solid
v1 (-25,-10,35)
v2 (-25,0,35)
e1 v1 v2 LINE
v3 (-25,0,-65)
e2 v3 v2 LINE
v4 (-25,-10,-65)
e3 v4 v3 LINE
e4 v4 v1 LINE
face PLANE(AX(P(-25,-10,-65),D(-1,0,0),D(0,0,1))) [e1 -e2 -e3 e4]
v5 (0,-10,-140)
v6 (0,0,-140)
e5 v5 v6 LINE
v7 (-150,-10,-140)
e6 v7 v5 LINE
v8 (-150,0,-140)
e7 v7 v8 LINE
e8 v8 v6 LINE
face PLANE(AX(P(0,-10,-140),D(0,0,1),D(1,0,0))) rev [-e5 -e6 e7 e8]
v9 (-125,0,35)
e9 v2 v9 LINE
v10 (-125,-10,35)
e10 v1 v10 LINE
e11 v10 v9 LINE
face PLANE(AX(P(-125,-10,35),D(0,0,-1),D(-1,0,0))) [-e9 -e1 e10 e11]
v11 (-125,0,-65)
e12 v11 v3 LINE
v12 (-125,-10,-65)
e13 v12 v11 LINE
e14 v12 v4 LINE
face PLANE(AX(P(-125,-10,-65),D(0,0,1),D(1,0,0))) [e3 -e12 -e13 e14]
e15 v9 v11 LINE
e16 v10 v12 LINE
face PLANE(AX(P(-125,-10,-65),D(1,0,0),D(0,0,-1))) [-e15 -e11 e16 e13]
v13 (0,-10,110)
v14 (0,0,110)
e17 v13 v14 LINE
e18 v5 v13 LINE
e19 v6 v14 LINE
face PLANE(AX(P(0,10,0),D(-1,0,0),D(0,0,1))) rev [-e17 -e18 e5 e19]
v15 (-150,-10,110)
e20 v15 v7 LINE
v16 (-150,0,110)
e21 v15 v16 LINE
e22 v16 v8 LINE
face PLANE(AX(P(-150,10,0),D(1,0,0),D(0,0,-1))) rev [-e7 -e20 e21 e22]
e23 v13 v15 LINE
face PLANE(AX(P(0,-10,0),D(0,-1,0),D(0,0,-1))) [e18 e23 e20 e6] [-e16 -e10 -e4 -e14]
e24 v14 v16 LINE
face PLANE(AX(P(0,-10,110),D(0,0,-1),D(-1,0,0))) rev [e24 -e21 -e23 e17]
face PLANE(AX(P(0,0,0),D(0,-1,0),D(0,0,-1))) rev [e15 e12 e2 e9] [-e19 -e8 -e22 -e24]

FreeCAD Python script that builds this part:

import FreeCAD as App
import Part
import Sketcher

V = App.Vector

doc = App.newDocument("Part")
body = doc.addObject("PartDesign::Body", "Body")

sketch1 = doc.addObject("Sketcher::SketchObject", "Sketch")
body.addObject(sketch1)
sketch1.AttachmentSupport = (doc.XZ_Plane, [""])
sketch1.MapMode = "FlatFace"
sketch1.addGeometry(Part.LineSegment(V(-150, -30, 0), V(-150, 0, 0)), False)
sketch1.addGeometry(Part.LineSegment(V(-150, 0, 0), V(0, 0, 0)), False)
sketch1.addGeometry(Part.LineSegment(V(0, 0, 0), V(0, -30, 0)), False)
sketch1.addGeometry(Part.LineSegment(V(0, -30, 0), V(-150, -30, 0)), False)
sketch1.addConstraint(Sketcher.Constraint("Coincident", 0, 2, 1, 1))
sketch1.addConstraint(Sketcher.Constraint("Coincident", 1, 2, 2, 1))
sketch1.addConstraint(Sketcher.Constraint("Coincident", 2, 2, 3, 1))
sketch1.addConstraint(Sketcher.Constraint("Coincident", 3, 2, 0, 1))
sketch1.addConstraint(Sketcher.Constraint("Vertical", 0))
sketch1.addConstraint(Sketcher.Constraint("Horizontal", 1))
sketch1.addConstraint(Sketcher.Constraint("Vertical", 2))
sketch1.addConstraint(Sketcher.Constraint("Horizontal", 3))
sketch1.addConstraint(Sketcher.Constraint("Coincident", 1, 2, -1, 1))
sketch1.addConstraint(Sketcher.Constraint("DistanceX", 1, 1, 1, 2, 150.0))
sketch1.addConstraint(Sketcher.Constraint("DistanceY", 0, 1, 0, 2, 30.0))
pad1 = doc.addObject("PartDesign::Pad", "Pad")
body.addObject(pad1)
pad1.Profile = sketch1
pad1.Length = 10
pad1.Reversed = True

sketch2 = doc.addObject("Sketcher::SketchObject", "Sketch001")
body.addObject(sketch2)
sketch2.AttachmentSupport = (doc.XZ_Plane, [""])
sketch2.MapMode = "FlatFace"
sketch2.addGeometry(Part.LineSegment(V(-150, 110, 0), V(-150, -140, 0)), False)
sketch2.addGeometry(Part.LineSegment(V(-150, -140, 0), V(0, -140, 0)), False)
sketch2.addGeometry(Part.LineSegment(V(0, -140, 0), V(0, 110, 0)), False)
sketch2.addGeometry(Part.LineSegment(V(0, 110, 0), V(-150, 110, 0)), False)
sketch2.addGeometry(Part.LineSegment(V(-25, -65, 0), V(-125, -65, 0)), False)
sketch2.addGeometry(Part.LineSegment(V(-125, -65, 0), V(-125, 35, 0)), False)
sketch2.addGeometry(Part.LineSegment(V(-125, 35, 0), V(-25, 35, 0)), False)
sketch2.addGeometry(Part.LineSegment(V(-25, 35, 0), V(-25, -65, 0)), False)
sketch2.addConstraint(Sketcher.Constraint("Coincident", 0, 2, 1, 1))
sketch2.addConstraint(Sketcher.Constraint("Coincident", 1, 2, 2, 1))
sketch2.addConstraint(Sketcher.Constraint("Coincident", 2, 2, 3, 1))
sketch2.addConstraint(Sketcher.Constraint("Coincident", 3, 2, 0, 1))
sketch2.addConstraint(Sketcher.Constraint("Coincident", 4, 2, 5, 1))
sketch2.addConstraint(Sketcher.Constraint("Coincident", 5, 2, 6, 1))
sketch2.addConstraint(Sketcher.Constraint("Coincident", 6, 2, 7, 1))
sketch2.addConstraint(Sketcher.Constraint("Coincident", 7, 2, 4, 1))
sketch2.addConstraint(Sketcher.Constraint("Vertical", 0))
sketch2.addConstraint(Sketcher.Constraint("Horizontal", 1))
sketch2.addConstraint(Sketcher.Constraint("Vertical", 2))
sketch2.addConstraint(Sketcher.Constraint("Horizontal", 3))
sketch2.addConstraint(Sketcher.Constraint("Horizontal", 4))
sketch2.addConstraint(Sketcher.Constraint("Vertical", 5))
sketch2.addConstraint(Sketcher.Constraint("Horizontal", 6))
sketch2.addConstraint(Sketcher.Constraint("Vertical", 7))
sketch2.addConstraint(Sketcher.Constraint("PointOnObject", 1, 2, -2))
sketch2.addConstraint(Sketcher.Constraint("Equal", 6, 5))
sketch2.addConstraint(Sketcher.Constraint("DistanceX", 1, 1, 1, 2, 150.0))
sketch2.addConstraint(Sketcher.Constraint("DistanceX", 4, 2, 4, 1, 100.0))
sketch2.addConstraint(Sketcher.Constraint("DistanceY", 0, 2, 0, 1, 250.0))
sketch2.addConstraint(Sketcher.Constraint("DistanceY", 0, 2, -1, 1, 140.0))
sketch2.addConstraint(Sketcher.Constraint("DistanceX", 4, 2, -1, 1, 125.0))
sketch2.addConstraint(Sketcher.Constraint("DistanceY", 4, 2, -1, 1, 65.0))
pad2 = doc.addObject("PartDesign::Pad", "Pad001")
body.addObject(pad2)
pad2.Profile = sketch2
pad2.Length = 10

sketch3 = doc.addObject("Sketcher::SketchObject", "Sketch002")
body.addObject(sketch3)
sketch3.AttachmentSupport = (doc.XZ_Plane, [""])
sketch3.MapMode = "FlatFace"
sketch3.addGeometry(Part.LineSegment(V(-150, -30, 0), V(-150, 0, 0)), False)
sketch3.addGeometry(Part.LineSegment(V(-150, 0, 0), V(0, 0, 0)), False)
sketch3.addGeometry(Part.LineSegment(V(0, 0, 0), V(0, -30, 0)), False)
sketch3.addGeometry(Part.LineSegment(V(0, -30, 0), V(-150, -30, 0)), False)
sketch3.addConstraint(Sketcher.Constraint("Coincident", 0, 2, 1, 1))
sketch3.addConstraint(Sketcher.Constraint("Coincident", 1, 2, 2, 1))
sketch3.addConstraint(Sketcher.Constraint("Coincident", 2, 2, 3, 1))
sketch3.addConstraint(Sketcher.Constraint("Coincident", 3, 2, 0, 1))
sketch3.addConstraint(Sketcher.Constraint("Vertical", 0))
sketch3.addConstraint(Sketcher.Constraint("Horizontal", 1))
sketch3.addConstraint(Sketcher.Constraint("Vertical", 2))
sketch3.addConstraint(Sketcher.Constraint("Horizontal", 3))
sketch3.addConstraint(Sketcher.Constraint("Coincident", 1, 2, -1, 1))
sketch3.addConstraint(Sketcher.Constraint("DistanceX", 1, 1, 1, 2, 150.0))
sketch3.addConstraint(Sketcher.Constraint("DistanceY", 0, 1, 0, 2, 30.0))
pocket1 = doc.addObject("PartDesign::Pocket", "Pocket")
body.addObject(pocket1)
pocket1.Profile = sketch3
pocket1.Length = 10

doc.recompute()
